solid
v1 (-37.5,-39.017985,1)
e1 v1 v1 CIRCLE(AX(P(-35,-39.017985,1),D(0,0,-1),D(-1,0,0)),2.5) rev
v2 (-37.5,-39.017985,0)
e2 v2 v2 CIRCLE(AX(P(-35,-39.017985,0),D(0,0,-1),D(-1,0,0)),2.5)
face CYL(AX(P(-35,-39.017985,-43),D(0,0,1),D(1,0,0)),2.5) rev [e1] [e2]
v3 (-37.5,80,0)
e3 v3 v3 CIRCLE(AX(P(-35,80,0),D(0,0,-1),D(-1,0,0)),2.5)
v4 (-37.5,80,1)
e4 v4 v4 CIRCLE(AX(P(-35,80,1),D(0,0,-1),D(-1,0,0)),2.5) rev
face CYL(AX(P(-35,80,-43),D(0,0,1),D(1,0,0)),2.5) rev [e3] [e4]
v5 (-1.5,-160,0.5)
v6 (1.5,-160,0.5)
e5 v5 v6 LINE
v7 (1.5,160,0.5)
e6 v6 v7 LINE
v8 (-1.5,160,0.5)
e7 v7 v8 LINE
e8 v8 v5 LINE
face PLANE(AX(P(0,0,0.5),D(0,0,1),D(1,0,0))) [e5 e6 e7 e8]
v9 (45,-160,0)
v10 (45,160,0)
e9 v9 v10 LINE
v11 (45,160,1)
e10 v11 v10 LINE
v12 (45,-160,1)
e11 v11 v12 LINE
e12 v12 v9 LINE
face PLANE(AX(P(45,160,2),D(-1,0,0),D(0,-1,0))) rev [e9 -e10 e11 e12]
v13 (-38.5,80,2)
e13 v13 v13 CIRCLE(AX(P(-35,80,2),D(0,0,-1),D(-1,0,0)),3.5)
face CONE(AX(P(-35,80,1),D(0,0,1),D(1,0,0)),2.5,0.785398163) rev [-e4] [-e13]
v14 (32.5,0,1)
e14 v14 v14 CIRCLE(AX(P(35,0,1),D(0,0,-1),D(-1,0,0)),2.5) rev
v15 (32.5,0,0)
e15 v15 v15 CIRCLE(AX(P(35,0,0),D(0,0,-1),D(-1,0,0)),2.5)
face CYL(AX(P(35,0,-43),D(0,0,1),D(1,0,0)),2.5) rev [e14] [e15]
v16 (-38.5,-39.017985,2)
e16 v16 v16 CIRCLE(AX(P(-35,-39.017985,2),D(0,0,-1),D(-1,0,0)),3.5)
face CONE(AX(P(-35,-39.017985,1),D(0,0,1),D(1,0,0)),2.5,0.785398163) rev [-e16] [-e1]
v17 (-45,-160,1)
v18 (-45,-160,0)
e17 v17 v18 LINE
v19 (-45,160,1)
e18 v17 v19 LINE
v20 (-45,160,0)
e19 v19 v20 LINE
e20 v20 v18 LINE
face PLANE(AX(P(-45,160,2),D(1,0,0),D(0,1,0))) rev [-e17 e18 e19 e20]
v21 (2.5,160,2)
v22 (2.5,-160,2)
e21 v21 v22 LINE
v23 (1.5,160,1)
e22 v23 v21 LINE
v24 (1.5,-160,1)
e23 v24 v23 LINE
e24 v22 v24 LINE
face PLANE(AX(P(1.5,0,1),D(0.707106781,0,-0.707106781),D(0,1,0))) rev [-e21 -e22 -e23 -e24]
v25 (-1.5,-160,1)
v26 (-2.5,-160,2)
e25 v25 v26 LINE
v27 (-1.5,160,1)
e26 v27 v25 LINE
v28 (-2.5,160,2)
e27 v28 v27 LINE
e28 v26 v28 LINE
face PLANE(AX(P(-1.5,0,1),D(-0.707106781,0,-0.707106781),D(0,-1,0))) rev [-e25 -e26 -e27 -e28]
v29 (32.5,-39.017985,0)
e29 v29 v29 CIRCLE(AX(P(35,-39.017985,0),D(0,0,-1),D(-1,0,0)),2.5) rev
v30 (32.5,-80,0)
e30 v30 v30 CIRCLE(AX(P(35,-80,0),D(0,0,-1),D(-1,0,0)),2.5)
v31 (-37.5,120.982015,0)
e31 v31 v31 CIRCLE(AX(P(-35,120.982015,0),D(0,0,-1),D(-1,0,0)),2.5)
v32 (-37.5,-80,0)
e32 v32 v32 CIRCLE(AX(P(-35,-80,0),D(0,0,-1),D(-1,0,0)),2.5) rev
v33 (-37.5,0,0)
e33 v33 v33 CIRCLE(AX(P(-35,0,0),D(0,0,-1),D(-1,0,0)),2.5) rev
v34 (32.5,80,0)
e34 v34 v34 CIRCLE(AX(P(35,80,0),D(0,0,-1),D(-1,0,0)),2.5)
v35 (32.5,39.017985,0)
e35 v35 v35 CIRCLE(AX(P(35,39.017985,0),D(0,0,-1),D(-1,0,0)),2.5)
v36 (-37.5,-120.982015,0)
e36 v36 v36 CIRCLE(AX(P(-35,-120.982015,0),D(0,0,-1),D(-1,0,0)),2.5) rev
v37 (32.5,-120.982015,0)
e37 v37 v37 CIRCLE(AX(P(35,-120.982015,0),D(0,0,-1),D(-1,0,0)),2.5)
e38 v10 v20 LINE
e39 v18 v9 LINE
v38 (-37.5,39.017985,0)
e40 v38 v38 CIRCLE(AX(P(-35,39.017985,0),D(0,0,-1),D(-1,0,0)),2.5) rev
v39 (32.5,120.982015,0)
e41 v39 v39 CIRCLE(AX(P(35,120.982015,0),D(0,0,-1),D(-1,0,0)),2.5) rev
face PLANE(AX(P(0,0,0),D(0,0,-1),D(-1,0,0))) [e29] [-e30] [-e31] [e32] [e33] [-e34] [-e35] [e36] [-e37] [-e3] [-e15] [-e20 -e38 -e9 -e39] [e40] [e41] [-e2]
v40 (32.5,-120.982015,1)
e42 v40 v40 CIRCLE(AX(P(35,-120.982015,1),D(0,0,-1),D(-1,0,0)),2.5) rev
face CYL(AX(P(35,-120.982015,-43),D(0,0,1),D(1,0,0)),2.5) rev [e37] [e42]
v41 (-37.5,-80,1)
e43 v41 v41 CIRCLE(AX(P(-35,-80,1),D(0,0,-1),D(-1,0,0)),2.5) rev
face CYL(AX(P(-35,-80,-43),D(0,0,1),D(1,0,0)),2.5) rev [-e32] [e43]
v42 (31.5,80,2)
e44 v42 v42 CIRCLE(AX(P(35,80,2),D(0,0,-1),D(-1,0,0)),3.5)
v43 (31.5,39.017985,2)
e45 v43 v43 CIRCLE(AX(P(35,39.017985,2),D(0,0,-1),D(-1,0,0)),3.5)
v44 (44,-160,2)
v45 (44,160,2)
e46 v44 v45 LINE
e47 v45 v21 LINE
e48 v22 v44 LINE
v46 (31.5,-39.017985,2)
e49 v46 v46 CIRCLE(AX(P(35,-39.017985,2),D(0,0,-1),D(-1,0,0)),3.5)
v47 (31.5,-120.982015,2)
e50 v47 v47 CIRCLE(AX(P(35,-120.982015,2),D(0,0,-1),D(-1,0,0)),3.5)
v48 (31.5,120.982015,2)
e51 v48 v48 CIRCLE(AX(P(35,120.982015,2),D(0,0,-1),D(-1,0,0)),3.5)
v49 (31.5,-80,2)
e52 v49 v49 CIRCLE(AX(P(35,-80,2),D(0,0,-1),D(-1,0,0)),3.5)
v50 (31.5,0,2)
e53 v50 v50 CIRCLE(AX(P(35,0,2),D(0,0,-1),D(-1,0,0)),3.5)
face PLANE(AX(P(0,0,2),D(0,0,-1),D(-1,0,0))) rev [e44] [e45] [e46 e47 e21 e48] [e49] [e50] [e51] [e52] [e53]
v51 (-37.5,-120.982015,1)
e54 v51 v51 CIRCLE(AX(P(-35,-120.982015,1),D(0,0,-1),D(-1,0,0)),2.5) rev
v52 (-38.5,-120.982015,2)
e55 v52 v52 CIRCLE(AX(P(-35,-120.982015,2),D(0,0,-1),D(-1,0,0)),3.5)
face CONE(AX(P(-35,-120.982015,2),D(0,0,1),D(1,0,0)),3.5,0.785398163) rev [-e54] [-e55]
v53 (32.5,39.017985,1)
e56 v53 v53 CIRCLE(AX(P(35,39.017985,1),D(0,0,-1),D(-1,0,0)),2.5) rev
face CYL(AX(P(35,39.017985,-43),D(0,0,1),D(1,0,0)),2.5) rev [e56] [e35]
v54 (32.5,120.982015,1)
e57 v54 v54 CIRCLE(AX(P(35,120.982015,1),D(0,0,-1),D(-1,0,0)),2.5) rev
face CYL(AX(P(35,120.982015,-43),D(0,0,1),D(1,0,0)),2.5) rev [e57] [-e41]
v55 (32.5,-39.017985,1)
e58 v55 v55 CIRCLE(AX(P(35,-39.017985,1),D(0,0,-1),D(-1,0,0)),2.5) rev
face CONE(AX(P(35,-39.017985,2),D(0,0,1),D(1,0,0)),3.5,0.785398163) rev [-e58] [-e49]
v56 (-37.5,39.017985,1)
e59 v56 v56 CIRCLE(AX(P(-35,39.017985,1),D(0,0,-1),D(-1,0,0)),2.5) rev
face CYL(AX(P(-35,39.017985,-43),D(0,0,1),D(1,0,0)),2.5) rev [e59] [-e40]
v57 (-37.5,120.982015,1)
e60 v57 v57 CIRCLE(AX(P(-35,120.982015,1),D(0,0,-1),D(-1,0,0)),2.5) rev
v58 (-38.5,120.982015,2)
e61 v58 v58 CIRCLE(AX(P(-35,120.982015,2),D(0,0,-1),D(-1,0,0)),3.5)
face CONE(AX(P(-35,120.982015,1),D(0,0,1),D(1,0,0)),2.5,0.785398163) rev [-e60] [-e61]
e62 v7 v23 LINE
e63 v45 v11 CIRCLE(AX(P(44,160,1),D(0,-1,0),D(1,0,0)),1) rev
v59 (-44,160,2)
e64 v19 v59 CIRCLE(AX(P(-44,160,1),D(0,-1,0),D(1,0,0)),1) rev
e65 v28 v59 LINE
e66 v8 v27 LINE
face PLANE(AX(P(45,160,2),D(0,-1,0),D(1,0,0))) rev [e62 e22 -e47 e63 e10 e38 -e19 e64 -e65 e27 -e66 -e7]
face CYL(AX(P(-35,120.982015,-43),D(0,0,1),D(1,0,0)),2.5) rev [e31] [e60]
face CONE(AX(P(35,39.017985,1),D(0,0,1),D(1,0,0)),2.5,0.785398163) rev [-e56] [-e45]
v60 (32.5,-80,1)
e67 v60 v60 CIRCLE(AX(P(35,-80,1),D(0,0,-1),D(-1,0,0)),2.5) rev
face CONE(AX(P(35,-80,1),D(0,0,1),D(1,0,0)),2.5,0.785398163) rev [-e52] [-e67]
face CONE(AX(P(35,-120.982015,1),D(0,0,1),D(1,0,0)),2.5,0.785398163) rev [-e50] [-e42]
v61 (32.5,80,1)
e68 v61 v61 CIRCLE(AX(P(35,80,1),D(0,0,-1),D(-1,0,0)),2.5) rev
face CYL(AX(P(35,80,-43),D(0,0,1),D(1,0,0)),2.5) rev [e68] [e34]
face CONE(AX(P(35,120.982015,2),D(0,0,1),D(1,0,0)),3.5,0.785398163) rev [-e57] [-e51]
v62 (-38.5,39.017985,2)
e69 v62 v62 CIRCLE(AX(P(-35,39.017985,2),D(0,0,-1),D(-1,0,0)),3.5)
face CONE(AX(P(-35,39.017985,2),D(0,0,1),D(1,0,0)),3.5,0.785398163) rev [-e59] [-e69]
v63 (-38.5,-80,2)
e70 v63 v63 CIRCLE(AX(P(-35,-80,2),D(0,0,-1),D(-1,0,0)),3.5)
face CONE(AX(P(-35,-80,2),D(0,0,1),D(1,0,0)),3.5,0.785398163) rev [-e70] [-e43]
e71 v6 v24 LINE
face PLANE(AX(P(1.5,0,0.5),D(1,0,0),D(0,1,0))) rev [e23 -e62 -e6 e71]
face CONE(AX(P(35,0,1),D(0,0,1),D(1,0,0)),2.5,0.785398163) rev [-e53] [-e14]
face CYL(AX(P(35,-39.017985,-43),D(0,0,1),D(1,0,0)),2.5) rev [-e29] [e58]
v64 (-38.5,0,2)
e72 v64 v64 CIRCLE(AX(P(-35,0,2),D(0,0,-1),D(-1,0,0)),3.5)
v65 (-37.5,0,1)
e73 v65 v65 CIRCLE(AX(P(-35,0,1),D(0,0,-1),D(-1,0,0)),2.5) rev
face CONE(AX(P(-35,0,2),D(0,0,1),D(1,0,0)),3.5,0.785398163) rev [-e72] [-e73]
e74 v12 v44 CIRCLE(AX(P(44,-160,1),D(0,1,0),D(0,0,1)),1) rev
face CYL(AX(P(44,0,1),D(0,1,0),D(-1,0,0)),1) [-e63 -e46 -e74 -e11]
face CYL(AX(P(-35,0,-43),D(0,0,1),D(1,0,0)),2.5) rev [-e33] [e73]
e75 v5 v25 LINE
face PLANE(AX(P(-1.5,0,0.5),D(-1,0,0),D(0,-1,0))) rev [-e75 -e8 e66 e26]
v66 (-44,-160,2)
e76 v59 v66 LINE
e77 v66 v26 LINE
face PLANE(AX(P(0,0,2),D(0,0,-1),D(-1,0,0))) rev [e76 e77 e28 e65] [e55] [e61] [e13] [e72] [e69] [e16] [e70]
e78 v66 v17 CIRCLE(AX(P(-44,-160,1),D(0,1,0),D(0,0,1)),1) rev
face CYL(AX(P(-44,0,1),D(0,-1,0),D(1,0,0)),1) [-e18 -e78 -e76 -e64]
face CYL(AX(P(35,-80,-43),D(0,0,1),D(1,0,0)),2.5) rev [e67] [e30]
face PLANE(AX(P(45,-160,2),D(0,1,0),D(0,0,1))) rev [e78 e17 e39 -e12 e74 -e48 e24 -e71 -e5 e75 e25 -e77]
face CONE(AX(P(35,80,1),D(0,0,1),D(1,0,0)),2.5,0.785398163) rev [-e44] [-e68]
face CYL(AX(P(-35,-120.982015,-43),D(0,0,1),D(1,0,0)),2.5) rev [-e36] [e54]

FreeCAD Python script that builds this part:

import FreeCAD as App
import Part
import Sketcher


def edges_at(feature, points):
    """Names of the edges that pass closest to the given points."""
    edges = feature.Shape.Edges
    near = lambda p: min(range(len(edges)), key=lambda i: edges[i].distToShape(Part.Vertex(*p))[0])
    return sorted({f"Edge{near(p) + 1}" for p in points})

doc = App.newDocument("Part")
body = doc.addObject("PartDesign::Body", "Body")

# Sketch on XY plane
sketch1 = body.newObject("Sketcher::SketchObject", "Sketch")
sketch1.AttachmentSupport = (doc.getObject("XY_Plane"), [""])
sketch1.MapMode = "FlatFace"
sketch1.addGeometry([
    Part.LineSegment(App.Vector(-45, 160, 0), App.Vector(-45, -160, 0)),
    Part.LineSegment(App.Vector(-45, -160, 0), App.Vector(45, -160, 0)),
    Part.LineSegment(App.Vector(45, -160, 0), App.Vector(45, 160, 0)),
    Part.LineSegment(App.Vector(45, 160, 0), App.Vector(-45, 160, 0)),
], False)
sketch1.addConstraint([
    Sketcher.Constraint("Coincident", 0, 2, 1, 1),
    Sketcher.Constraint("Coincident", 1, 2, 2, 1),
    Sketcher.Constraint("Coincident", 2, 2, 3, 1),
    Sketcher.Constraint("Coincident", 3, 2, 0, 1),
    Sketcher.Constraint("Vertical", 0),
    Sketcher.Constraint("Horizontal", 1),
    Sketcher.Constraint("Vertical", 2),
    Sketcher.Constraint("Horizontal", 3),
    Sketcher.Constraint("Symmetric", 0, 2, 2, 2, -1, 1),
    Sketcher.Constraint("DistanceX", 1, 1, 1, 2, 90.0),
    Sketcher.Constraint("DistanceY", 0, 2, 0, 1, 320.0),
])
pad1 = body.newObject("PartDesign::Pad", "Pad")
pad1.Profile = sketch1
pad1.Length = 2

# Sketch on XY plane
sketch2 = body.newObject("Sketcher::SketchObject", "Sketch001")
sketch2.AttachmentSupport = (doc.getObject("XY_Plane"), [""])
sketch2.MapMode = "FlatFace"
sketch2.AttachmentOffset = App.Placement(App.Vector(0, 0, 2), App.Rotation())
sketch2.addGeometry([
    Part.Circle(App.Vector(-35, 121, 0), App.Vector(0, 0, 1), 2.5),  # 0
    Part.Circle(App.Vector(35, 121, 0), App.Vector(0, 0, 1), 2.5),  # 1
    Part.Circle(App.Vector(35, 80, 0), App.Vector(0, 0, 1), 2.5),  # 2
    Part.Circle(App.Vector(-35, 80, 0), App.Vector(0, 0, 1), 2.5),  # 3
    Part.Circle(App.Vector(-35, 39, 0), App.Vector(0, 0, 1), 2.5),  # 4
    Part.Circle(App.Vector(35, 39, 0), App.Vector(0, 0, 1), 2.5),  # 5
    Part.Circle(App.Vector(35, 0, 0), App.Vector(0, 0, 1), 2.5),  # 6
    Part.Circle(App.Vector(-35, 0, 0), App.Vector(0, 0, 1), 2.5),  # 7
    Part.Circle(App.Vector(-35, -39, 0), App.Vector(0, 0, 1), 2.5),  # 8
    Part.Circle(App.Vector(35, -39, 0), App.Vector(0, 0, 1), 2.5),  # 9
    Part.Circle(App.Vector(35, -80, 0), App.Vector(0, 0, 1), 2.5),  # 10
    Part.Circle(App.Vector(-35, -80, 0), App.Vector(0, 0, 1), 2.5),  # 11
    Part.Circle(App.Vector(35, -121, 0), App.Vector(0, 0, 1), 2.5),  # 12
    Part.Circle(App.Vector(-35, -121, 0), App.Vector(0, 0, 1), 2.5),  # 13
], False)
sketch2.addConstraint([
    Sketcher.Constraint("Equal", 0, 1),
    Sketcher.Constraint("Equal", 1, 2),
    Sketcher.Constraint("Equal", 2, 3),
    Sketcher.Constraint("Equal", 3, 4),
    Sketcher.Constraint("Equal", 4, 5),
    Sketcher.Constraint("Equal", 5, 6),
    Sketcher.Constraint("Equal", 6, 7),
    Sketcher.Constraint("Equal", 7, 8),
    Sketcher.Constraint("Equal", 8, 9),
    Sketcher.Constraint("Equal", 9, 10),
    Sketcher.Constraint("Equal", 10, 11),
    Sketcher.Constraint("Equal", 11, 12),
    Sketcher.Constraint("Equal", 12, 13),
    Sketcher.Constraint("Symmetric", 6, 3, 7, 3, -1, 1),
    Sketcher.Constraint("Symmetric", 5, 3, 8, 3, -1, 1),
    Sketcher.Constraint("Symmetric", 4, 3, 9, 3, -1, 1),
    Sketcher.Constraint("Symmetric", 3, 3, 10, 3, -1, 1),
    Sketcher.Constraint("Symmetric", 2, 3, 11, 3, -1, 1),
    Sketcher.Constraint("Symmetric", 0, 3, 12, 3, -1, 1),
    Sketcher.Constraint("Symmetric", 1, 3, 13, 3, -1, 1),
    Sketcher.Constraint("Symmetric", 0, 3, 1, 3, -2),
    Sketcher.Constraint("Symmetric", 2, 3, 3, 3, -2),
    Sketcher.Constraint("Symmetric", 4, 3, 5, 3, -2),
    Sketcher.Constraint("PointOnObject", 6, 3, -1),
    Sketcher.Constraint("Vertical", 1, 3, 2, 3),
    Sketcher.Constraint("Vertical", 3, 3, 4, 3),
    Sketcher.Constraint("Vertical", 5, 3, 6, 3),
    Sketcher.Constraint("Diameter", 0, 5.0),
    Sketcher.Constraint("DistanceX", 0, 3, -1, 1, 35.0),
    Sketcher.Constraint("DistanceY", -1, 1, 2, 3, 80.0),
    Sketcher.Constraint("DistanceY", 4, 3, 0, 3, 81.964029),
    Sketcher.Constraint("DistanceY", 8, 3, 4, 3, 78.035971),
])
pocket1 = body.newObject("PartDesign::Pocket", "Pocket")
pocket1.Profile = sketch2
pocket1.Length = 45
doc.recompute()

fillet = body.newObject("PartDesign::Fillet", "Fillet")
fillet.Base = (pocket1, edges_at(pocket1, [(45, 0, 2), (-45, 0, 2)]))
fillet.Radius = 1
doc.recompute()

chamfer = body.newObject("PartDesign::Chamfer", "Chamfer")
chamfer.Base = (fillet, edges_at(fillet, [
    (-37.5, -39.018, 2),
    (-37.5, 0, 2),
    (32.5, 0, 2),
    (32.5, 39.018, 2),
    (-37.5, 39.018, 2),
    (-37.5, 80, 2),
    (32.5, 80, 2),
    (32.5, 120.982, 2),
    (-37.5, -120.982, 2),
    (32.5, -39.018, 2),
    (32.5, -80, 2),
    (-37.5, -80, 2),
    (32.5, -120.982, 2),
    (-37.5, 120.982, 2),
]))
chamfer.Size = 1

# Sketch on XY plane
sketch3 = body.newObject("Sketcher::SketchObject", "Sketch002")
sketch3.AttachmentSupport = (doc.getObject("XY_Plane"), [""])
sketch3.MapMode = "FlatFace"
sketch3.AttachmentOffset = App.Placement(App.Vector(0, 0, 2), App.Rotation())
sketch3.addGeometry([
    Part.LineSegment(App.Vector(-1.5, 160, 0), App.Vector(-1.5, -160, 0)),
    Part.LineSegment(App.Vector(-1.5, -160, 0), App.Vector(1.5, -160, 0)),
    Part.LineSegment(App.Vector(1.5, -160, 0), App.Vector(1.5, 160, 0)),
    Part.LineSegment(App.Vector(1.5, 160, 0), App.Vector(-1.5, 160, 0)),
], False)
sketch3.addConstraint([
    Sketcher.Constraint("Coincident", 0, 2, 1, 1),
    Sketcher.Constraint("Coincident", 1, 2, 2, 1),
    Sketcher.Constraint("Coincident", 2, 2, 3, 1),
    Sketcher.Constraint("Coincident", 3, 2, 0, 1),
    Sketcher.Constraint("Vertical", 0),
    Sketcher.Constraint("Horizontal", 1),
    Sketcher.Constraint("Vertical", 2),
    Sketcher.Constraint("Horizontal", 3),
    Sketcher.Constraint("Symmetric", 0, 2, 2, 2, -1, 1),
    Sketcher.Constraint("DistanceX", 1, 1, 1, 2, 3.0),
    Sketcher.Constraint("DistanceY", 0, 2, 0, 1, 320.0),
])
pocket2 = body.newObject("PartDesign::Pocket", "Pocket001")
pocket2.Profile = sketch3
pocket2.Length = 1.5
doc.recompute()

chamfer2 = body.newObject("PartDesign::Chamfer", "Chamfer001")
chamfer2.Base = (pocket2, edges_at(pocket2, [(-1.5, 0, 2), (1.5, 0, 2)]))
chamfer2.Size = 1

doc.recompute()
